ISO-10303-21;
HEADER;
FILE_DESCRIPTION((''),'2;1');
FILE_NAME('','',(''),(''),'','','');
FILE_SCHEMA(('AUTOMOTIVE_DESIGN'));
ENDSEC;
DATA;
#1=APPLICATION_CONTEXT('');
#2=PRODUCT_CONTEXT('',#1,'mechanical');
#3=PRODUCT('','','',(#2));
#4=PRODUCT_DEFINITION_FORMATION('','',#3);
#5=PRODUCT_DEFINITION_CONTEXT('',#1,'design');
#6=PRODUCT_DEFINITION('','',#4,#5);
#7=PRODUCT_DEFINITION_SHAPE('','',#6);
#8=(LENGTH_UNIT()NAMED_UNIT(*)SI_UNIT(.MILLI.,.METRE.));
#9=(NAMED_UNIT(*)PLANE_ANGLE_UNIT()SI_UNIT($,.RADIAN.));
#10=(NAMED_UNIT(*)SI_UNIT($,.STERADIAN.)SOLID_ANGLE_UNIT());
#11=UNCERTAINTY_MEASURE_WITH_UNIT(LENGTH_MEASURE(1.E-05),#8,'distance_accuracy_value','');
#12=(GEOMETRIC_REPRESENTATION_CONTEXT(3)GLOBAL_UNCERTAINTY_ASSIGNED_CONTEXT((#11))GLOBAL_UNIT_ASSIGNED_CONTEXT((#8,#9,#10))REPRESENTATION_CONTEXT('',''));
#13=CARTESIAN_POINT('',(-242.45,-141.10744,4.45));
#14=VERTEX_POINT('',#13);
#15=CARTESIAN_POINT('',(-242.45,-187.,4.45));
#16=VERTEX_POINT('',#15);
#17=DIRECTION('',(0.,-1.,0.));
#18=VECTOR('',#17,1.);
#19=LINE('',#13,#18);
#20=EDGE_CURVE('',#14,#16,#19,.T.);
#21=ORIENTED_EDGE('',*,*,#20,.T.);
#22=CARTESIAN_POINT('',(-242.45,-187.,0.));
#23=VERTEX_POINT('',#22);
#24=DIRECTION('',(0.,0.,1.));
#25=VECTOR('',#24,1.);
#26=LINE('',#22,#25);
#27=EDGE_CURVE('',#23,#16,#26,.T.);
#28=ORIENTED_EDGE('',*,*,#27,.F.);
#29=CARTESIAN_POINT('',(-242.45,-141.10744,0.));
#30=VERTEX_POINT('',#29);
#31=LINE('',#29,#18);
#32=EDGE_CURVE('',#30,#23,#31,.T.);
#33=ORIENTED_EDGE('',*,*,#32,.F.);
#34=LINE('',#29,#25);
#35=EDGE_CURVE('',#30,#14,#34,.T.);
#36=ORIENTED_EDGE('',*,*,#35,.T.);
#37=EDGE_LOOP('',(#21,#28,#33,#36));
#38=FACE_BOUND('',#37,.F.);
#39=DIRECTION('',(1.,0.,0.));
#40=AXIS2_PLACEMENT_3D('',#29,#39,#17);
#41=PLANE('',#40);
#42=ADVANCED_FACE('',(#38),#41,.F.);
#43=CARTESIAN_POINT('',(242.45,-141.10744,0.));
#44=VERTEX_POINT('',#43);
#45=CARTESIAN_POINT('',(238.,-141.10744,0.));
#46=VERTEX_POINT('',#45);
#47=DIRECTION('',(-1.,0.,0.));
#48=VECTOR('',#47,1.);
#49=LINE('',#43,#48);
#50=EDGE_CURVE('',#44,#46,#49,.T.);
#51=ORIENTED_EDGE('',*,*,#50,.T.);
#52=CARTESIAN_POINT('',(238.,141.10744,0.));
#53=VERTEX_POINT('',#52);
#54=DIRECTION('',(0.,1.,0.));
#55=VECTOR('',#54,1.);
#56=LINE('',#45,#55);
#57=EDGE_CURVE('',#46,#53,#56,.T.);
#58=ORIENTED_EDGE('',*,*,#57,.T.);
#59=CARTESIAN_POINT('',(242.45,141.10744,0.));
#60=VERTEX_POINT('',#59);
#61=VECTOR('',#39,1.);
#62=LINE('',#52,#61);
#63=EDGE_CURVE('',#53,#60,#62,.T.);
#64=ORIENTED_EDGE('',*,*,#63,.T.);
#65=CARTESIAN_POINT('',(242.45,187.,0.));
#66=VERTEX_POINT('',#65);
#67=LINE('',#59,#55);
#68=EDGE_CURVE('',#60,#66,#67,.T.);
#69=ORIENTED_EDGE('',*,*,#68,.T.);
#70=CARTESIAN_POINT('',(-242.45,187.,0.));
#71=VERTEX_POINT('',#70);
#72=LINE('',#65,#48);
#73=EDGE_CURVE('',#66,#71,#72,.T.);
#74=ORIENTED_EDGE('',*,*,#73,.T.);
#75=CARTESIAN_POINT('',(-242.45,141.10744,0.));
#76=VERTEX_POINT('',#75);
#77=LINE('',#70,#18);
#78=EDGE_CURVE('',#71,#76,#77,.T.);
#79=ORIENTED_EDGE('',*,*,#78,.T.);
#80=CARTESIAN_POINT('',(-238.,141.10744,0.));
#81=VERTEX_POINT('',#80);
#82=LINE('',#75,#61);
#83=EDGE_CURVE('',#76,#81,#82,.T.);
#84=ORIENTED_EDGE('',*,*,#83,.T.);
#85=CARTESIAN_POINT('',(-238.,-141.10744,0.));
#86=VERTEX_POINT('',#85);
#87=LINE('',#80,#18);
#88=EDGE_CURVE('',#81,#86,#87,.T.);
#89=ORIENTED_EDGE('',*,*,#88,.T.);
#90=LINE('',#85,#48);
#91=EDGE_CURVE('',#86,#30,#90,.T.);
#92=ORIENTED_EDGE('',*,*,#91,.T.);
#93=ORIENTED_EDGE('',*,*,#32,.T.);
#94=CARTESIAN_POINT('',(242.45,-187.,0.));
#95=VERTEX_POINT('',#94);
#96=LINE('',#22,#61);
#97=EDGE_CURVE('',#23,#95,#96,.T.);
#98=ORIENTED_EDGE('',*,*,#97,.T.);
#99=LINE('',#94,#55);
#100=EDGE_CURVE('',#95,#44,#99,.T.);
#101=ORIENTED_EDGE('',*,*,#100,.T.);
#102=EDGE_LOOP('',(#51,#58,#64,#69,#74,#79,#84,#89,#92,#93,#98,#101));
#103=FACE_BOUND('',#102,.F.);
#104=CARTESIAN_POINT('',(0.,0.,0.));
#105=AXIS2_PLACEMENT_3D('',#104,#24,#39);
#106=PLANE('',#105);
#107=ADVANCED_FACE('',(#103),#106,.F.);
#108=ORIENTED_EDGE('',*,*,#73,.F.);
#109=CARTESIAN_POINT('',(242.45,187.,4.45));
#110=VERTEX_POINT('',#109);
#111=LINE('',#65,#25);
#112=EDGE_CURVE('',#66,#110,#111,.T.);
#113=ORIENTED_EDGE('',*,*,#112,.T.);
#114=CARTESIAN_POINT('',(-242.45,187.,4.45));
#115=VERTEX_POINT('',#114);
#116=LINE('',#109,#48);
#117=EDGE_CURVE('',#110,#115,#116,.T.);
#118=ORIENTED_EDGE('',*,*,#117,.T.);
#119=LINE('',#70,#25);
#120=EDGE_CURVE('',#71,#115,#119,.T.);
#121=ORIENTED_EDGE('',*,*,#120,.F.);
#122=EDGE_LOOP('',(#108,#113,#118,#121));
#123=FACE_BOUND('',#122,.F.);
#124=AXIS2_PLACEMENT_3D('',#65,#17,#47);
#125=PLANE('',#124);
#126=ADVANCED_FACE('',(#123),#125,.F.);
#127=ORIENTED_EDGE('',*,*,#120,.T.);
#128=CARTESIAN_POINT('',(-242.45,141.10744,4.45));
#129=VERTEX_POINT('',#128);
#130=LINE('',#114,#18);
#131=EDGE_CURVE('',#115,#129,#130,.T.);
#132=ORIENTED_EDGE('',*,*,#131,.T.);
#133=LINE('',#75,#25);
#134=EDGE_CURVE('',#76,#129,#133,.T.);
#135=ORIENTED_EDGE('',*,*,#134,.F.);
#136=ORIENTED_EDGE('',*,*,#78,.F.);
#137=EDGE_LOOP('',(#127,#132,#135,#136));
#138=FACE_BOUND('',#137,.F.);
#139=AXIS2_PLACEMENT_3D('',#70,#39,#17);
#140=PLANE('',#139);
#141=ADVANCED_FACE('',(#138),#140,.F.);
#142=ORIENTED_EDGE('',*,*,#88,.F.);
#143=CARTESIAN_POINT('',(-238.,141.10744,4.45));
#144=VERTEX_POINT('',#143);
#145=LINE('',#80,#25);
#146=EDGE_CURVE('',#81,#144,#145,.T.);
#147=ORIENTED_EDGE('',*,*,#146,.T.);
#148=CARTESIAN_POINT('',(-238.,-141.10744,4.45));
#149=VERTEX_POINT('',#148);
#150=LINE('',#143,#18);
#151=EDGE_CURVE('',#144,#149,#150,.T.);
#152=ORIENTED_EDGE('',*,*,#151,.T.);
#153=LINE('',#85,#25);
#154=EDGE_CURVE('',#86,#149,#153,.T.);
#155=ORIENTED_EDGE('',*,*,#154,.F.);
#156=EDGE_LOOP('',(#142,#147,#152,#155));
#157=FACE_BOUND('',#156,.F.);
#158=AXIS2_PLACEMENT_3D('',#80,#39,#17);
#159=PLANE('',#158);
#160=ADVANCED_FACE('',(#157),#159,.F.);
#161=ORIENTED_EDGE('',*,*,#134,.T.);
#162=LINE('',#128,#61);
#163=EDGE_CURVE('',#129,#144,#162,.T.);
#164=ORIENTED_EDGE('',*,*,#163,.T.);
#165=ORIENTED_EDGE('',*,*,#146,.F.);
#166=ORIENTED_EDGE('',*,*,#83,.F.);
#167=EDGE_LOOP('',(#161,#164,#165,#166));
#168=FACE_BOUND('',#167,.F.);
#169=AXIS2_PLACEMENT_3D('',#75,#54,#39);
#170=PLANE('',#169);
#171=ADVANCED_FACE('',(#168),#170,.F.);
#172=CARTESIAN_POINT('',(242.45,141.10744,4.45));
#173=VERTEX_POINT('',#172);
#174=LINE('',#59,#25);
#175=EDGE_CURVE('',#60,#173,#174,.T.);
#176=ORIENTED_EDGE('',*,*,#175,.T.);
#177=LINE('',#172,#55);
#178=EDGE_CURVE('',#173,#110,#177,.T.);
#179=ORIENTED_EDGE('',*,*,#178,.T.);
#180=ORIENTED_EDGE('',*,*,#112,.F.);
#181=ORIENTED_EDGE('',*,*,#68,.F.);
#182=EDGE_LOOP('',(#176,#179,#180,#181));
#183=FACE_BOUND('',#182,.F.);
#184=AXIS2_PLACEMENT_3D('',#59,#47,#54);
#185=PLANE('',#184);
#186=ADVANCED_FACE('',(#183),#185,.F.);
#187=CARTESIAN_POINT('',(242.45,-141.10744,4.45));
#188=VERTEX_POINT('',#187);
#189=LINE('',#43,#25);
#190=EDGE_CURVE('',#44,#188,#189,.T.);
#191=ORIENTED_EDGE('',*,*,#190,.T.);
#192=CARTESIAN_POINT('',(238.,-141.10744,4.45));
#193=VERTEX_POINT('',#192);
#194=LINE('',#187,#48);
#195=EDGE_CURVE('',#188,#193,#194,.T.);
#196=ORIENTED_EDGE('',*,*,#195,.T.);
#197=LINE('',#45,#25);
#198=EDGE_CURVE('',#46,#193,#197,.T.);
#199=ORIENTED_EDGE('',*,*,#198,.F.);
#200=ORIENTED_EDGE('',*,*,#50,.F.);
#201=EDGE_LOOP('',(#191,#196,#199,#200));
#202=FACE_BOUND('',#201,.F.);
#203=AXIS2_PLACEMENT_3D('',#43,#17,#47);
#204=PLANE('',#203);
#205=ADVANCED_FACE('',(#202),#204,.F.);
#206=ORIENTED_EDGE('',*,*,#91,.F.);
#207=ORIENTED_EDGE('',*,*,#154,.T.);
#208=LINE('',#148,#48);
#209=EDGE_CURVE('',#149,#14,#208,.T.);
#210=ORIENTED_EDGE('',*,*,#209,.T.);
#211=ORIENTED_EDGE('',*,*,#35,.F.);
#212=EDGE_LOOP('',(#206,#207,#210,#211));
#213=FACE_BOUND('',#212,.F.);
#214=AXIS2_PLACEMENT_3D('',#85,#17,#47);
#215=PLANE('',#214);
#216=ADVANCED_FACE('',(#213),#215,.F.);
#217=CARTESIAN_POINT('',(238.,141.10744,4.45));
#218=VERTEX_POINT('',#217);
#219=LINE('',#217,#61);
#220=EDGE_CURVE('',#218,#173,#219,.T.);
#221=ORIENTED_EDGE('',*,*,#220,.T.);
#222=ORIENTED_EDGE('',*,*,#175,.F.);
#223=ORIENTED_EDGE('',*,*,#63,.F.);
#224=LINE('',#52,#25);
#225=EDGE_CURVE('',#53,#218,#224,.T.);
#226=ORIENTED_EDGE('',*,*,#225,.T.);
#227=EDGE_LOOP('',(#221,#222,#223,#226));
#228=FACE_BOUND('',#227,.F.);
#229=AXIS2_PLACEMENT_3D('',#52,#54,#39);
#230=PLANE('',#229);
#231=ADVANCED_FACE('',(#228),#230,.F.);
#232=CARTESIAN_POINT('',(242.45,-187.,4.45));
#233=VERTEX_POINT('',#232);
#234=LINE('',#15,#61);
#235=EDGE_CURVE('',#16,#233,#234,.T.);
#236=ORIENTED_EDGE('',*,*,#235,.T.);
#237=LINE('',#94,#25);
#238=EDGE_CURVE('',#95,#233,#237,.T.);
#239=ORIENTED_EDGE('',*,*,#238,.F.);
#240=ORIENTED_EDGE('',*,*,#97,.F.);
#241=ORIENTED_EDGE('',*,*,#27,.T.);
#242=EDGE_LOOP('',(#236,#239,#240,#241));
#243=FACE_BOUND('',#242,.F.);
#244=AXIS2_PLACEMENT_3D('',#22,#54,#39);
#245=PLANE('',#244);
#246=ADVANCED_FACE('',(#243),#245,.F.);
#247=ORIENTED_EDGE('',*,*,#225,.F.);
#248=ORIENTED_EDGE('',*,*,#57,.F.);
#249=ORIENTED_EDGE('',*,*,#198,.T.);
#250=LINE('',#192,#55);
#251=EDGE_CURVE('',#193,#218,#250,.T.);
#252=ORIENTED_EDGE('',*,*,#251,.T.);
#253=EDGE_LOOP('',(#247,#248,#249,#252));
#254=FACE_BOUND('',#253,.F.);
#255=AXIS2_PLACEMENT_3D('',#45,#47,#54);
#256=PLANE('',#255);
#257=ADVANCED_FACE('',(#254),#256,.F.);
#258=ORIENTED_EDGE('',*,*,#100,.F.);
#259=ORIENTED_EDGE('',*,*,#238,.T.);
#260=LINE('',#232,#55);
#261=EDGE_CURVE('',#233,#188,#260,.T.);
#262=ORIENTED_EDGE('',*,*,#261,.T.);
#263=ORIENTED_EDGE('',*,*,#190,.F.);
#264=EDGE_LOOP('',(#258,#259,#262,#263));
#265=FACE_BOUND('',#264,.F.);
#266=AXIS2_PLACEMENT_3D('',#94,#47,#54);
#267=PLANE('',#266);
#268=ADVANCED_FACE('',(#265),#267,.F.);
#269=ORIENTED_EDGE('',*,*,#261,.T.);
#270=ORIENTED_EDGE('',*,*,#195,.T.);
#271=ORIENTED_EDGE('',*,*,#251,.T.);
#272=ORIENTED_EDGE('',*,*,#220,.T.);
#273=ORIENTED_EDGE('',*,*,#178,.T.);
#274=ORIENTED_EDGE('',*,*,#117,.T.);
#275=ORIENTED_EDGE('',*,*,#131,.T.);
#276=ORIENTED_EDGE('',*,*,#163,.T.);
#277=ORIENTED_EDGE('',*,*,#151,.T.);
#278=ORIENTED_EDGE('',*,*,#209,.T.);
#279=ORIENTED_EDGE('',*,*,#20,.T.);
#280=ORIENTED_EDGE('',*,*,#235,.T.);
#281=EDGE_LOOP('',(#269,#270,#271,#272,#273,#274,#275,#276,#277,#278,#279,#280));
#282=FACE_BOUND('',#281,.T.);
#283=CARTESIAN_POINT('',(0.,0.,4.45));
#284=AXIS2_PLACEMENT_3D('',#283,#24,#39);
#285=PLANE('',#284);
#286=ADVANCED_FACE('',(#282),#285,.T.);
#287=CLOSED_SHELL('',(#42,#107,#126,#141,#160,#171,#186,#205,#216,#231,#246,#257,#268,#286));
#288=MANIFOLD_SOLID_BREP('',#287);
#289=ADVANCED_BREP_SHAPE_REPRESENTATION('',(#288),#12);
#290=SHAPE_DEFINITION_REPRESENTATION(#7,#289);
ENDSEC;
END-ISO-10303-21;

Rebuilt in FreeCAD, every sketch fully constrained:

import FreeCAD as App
import Part
import Sketcher
from FreeCAD import Vector

doc = App.newDocument("Part")
body = doc.addObject("PartDesign::Body", "Body")

# Sketch on XY plane
sketch1 = body.newObject("Sketcher::SketchObject", "Sketch")
sketch1.AttachmentSupport = (doc.getObject("XY_Plane"), [""])
sketch1.MapMode = "FlatFace"
sketch1.addGeometry(Part.LineSegment(Vector(242.4, -187, 0), Vector(242.4, -141.1, 0)), False)
sketch1.addGeometry(Part.LineSegment(Vector(242.4, -141.1, 0), Vector(238, -141.1, 0)), False)
sketch1.addGeometry(Part.LineSegment(Vector(238, -141.1, 0), Vector(238, 141.1, 0)), False)
sketch1.addGeometry(Part.LineSegment(Vector(238, 141.1, 0), Vector(242.4, 141.1, 0)), False)
sketch1.addGeometry(Part.LineSegment(Vector(242.4, 141.1, 0), Vector(242.4, 187, 0)), False)
sketch1.addGeometry(Part.LineSegment(Vector(242.4, 187, 0), Vector(-242.4, 187, 0)), False)
sketch1.addGeometry(Part.LineSegment(Vector(-242.4, 187, 0), Vector(-242.4, 141.1, 0)), False)
sketch1.addGeometry(Part.LineSegment(Vector(-242.4, 141.1, 0), Vector(-238, 141.1, 0)), False)
sketch1.addGeometry(Part.LineSegment(Vector(-238, 141.1, 0), Vector(-238, -141.1, 0)), False)
sketch1.addGeometry(Part.LineSegment(Vector(-238, -141.1, 0), Vector(-242.4, -141.1, 0)), False)
sketch1.addGeometry(Part.LineSegment(Vector(-242.4, -141.1, 0), Vector(-242.4, -187, 0)), False)
sketch1.addGeometry(Part.LineSegment(Vector(-242.4, -187, 0), Vector(242.4, -187, 0)), False)
sketch1.addConstraint(Sketcher.Constraint("Coincident", 0, 2, 1, 1))
sketch1.addConstraint(Sketcher.Constraint("Coincident", 1, 2, 2, 1))
sketch1.addConstraint(Sketcher.Constraint("Coincident", 2, 2, 3, 1))
sketch1.addConstraint(Sketcher.Constraint("Coincident", 3, 2, 4, 1))
sketch1.addConstraint(Sketcher.Constraint("Coincident", 4, 2, 5, 1))
sketch1.addConstraint(Sketcher.Constraint("Coincident", 5, 2, 6, 1))
sketch1.addConstraint(Sketcher.Constraint("Coincident", 6, 2, 7, 1))
sketch1.addConstraint(Sketcher.Constraint("Coincident", 7, 2, 8, 1))
sketch1.addConstraint(Sketcher.Constraint("Coincident", 8, 2, 9, 1))
sketch1.addConstraint(Sketcher.Constraint("Coincident", 9, 2, 10, 1))
sketch1.addConstraint(Sketcher.Constraint("Coincident", 10, 2, 11, 1))
sketch1.addConstraint(Sketcher.Constraint("Coincident", 11, 2, 0, 1))
sketch1.addConstraint(Sketcher.Constraint("Vertical", 0))
sketch1.addConstraint(Sketcher.Constraint("Horizontal", 1))
sketch1.addConstraint(Sketcher.Constraint("Vertical", 2))
sketch1.addConstraint(Sketcher.Constraint("Horizontal", 3))
sketch1.addConstraint(Sketcher.Constraint("Vertical", 4))
sketch1.addConstraint(Sketcher.Constraint("Horizontal", 5))
sketch1.addConstraint(Sketcher.Constraint("Vertical", 6))
sketch1.addConstraint(Sketcher.Constraint("Horizontal", 7))
sketch1.addConstraint(Sketcher.Constraint("Vertical", 8))
sketch1.addConstraint(Sketcher.Constraint("Horizontal", 9))
sketch1.addConstraint(Sketcher.Constraint("Vertical", 10))
sketch1.addConstraint(Sketcher.Constraint("Horizontal", 11))
sketch1.addConstraint(Sketcher.Constraint("Symmetric", 0, 2, 6, 2, -1, 1))
sketch1.addConstraint(Sketcher.Constraint("Symmetric", 2, 2, 8, 2, -1, 1))
sketch1.addConstraint(Sketcher.Constraint("Symmetric", 4, 2, 10, 2, -1, 1))
sketch1.addConstraint(Sketcher.Constraint("Symmetric", 3, 2, 6, 2, -2))
sketch1.addConstraint(Sketcher.Constraint("DistanceX", 5, 2, 5, 1, 484.9))
sketch1.addConstraint(Sketcher.Constraint("DistanceX", -1, 1, 1, 2, 238.0))
sketch1.addConstraint(Sketcher.Constraint("DistanceY", -1, 1, 4, 2, 187.0))
sketch1.addConstraint(Sketcher.Constraint("DistanceY", 0, 1, 0, 2, 45.89256))
pad1 = body.newObject("PartDesign::Pad", "Pad")
pad1.Profile = sketch1
pad1.Length = 4.45

doc.recompute()
